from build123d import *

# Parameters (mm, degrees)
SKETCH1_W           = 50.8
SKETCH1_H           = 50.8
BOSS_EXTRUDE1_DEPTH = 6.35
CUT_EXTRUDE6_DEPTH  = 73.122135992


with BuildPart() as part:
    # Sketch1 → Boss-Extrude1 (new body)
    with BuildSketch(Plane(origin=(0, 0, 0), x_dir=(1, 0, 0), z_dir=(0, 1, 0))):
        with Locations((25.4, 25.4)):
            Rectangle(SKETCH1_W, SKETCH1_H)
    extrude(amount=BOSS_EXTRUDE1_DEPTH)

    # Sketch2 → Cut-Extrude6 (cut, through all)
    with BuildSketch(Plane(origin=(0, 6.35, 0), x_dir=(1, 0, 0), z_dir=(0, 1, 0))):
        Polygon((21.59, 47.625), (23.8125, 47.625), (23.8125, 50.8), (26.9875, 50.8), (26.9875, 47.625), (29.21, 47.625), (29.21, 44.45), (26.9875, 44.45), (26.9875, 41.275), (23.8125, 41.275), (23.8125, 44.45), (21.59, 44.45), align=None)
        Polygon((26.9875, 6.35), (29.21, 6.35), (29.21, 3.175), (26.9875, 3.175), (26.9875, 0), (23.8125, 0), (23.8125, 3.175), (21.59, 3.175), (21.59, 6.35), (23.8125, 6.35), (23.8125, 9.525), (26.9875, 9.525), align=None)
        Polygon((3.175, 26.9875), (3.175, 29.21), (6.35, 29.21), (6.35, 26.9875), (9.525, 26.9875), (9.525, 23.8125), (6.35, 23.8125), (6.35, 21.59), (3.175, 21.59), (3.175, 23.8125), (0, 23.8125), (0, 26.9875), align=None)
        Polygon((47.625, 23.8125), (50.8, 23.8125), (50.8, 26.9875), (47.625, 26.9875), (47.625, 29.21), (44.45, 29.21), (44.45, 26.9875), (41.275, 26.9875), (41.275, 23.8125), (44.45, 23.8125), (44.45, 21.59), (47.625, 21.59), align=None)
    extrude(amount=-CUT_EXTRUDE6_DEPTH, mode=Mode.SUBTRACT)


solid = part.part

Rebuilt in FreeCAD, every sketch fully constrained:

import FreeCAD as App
import Part
import Sketcher
Q = App.Units.Quantity


def add_polygon(sketch, points):
    """Adds a closed chain of lines whose ends are joined by coincident constraints."""
    first, n = sketch.GeometryCount, len(points)
    for a, b in zip(points, points[1:] + points[:1]):
        sketch.addGeometry(Part.LineSegment(App.Vector(*a, 0), App.Vector(*b, 0)), False)
    for i in range(n):
        sketch.addConstraint(Sketcher.Constraint("Coincident", first + i, 2, first + (i + 1) % n, 1))

doc = App.newDocument("Part")
body = doc.addObject("PartDesign::Body", "Body")

sketch1 = body.newObject("Sketcher::SketchObject", "Sketch")
sketch1.AttachmentSupport = (doc.getObject("XZ_Plane"), [""])
sketch1.MapMode = "FlatFace"
add_polygon(sketch1, [(0, -51), (0, 0), (51, 0), (51, -51)])
sketch1.addConstraint(Sketcher.Constraint("Vertical", 0))
sketch1.addConstraint(Sketcher.Constraint("Horizontal", 1))
sketch1.addConstraint(Sketcher.Constraint("Vertical", 2))
sketch1.addConstraint(Sketcher.Constraint("Horizontal", 3))
sketch1.addConstraint(Sketcher.Constraint("Coincident", 0, 2, -1, 1))
sketch1.addConstraint(Sketcher.Constraint("Equal", 3, 0))
sketch1.addConstraint(Sketcher.Constraint("DistanceX", 1, 1, 1, 2, Q("2 in")))
pad1 = body.newObject("PartDesign::Pad", "Pad")
pad1.Profile = sketch1
pad1.Length = Q("0.25 in")
pad1.Reversed = True

sketch2 = body.newObject("Sketcher::SketchObject", "Sketch001")
sketch2.AttachmentSupport = (doc.getObject("XZ_Plane"), [""])
sketch2.MapMode = "FlatFace"
sketch2.AttachmentOffset = App.Placement(App.Vector(0, 0, -0.25 * 25.4), App.Rotation())
add_polygon(sketch2, [(23.8, -47.6), (21.6, -47.6), (21.6, -44.5), (23.8, -44.5), (23.8, -41.3), (27, -41.3), (27, -44.5), (29.2, -44.5), (29.2, -47.6), (27, -47.6), (27, -50.8), (23.8, -50.8)])
add_polygon(sketch2, [(29.2, -6.3), (27, -6.3), (27, -9.5), (23.8, -9.5), (23.8, -6.3), (21.6, -6.3), (21.6, -3.2), (23.8, -3.2), (23.8, 0), (27, 0), (27, -3.2), (29.2, -3.2)])
add_polygon(sketch2, [(3.2, -29.2), (3.2, -27), (0, -27), (0, -23.8), (3.2, -23.8), (3.2, -21.6), (6.3, -21.6), (6.3, -23.8), (9.5, -23.8), (9.5, -27), (6.3, -27), (6.3, -29.2)])
add_polygon(sketch2, [(47.6, -23.8), (50.8, -23.8), (50.8, -27), (47.6, -27), (47.6, -29.2), (44.5, -29.2), (44.5, -27), (41.3, -27), (41.3, -23.8), (44.5, -23.8), (44.5, -21.6), (47.6, -21.6)])
sketch2.addConstraint(Sketcher.Constraint("Horizontal", 0))
sketch2.addConstraint(Sketcher.Constraint("Vertical", 1))
sketch2.addConstraint(Sketcher.Constraint("Horizontal", 2))
sketch2.addConstraint(Sketcher.Constraint("Vertical", 3))
sketch2.addConstraint(Sketcher.Constraint("Horizontal", 4))
sketch2.addConstraint(Sketcher.Constraint("Vertical", 5))
sketch2.addConstraint(Sketcher.Constraint("Horizontal", 6))
sketch2.addConstraint(Sketcher.Constraint("Vertical", 7))
sketch2.addConstraint(Sketcher.Constraint("Horizontal", 8))
sketch2.addConstraint(Sketcher.Constraint("Vertical", 9))
sketch2.addConstraint(Sketcher.Constraint("Horizontal", 10))
sketch2.addConstraint(Sketcher.Constraint("Vertical", 11))
sketch2.addConstraint(Sketcher.Constraint("Horizontal", 12))
sketch2.addConstraint(Sketcher.Constraint("Vertical", 13))
sketch2.addConstraint(Sketcher.Constraint("Horizontal", 14))
sketch2.addConstraint(Sketcher.Constraint("Vertical", 15))
sketch2.addConstraint(Sketcher.Constraint("Horizontal", 16))
sketch2.addConstraint(Sketcher.Constraint("Vertical", 17))
sketch2.addConstraint(Sketcher.Constraint("Horizontal", 18))
sketch2.addConstraint(Sketcher.Constraint("Vertical", 19))
sketch2.addConstraint(Sketcher.Constraint("Horizontal", 20))
sketch2.addConstraint(Sketcher.Constraint("Vertical", 21))
sketch2.addConstraint(Sketcher.Constraint("Horizontal", 22))
sketch2.addConstraint(Sketcher.Constraint("Vertical", 23))
sketch2.addConstraint(Sketcher.Constraint("Vertical", 24))
sketch2.addConstraint(Sketcher.Constraint("Horizontal", 25))
sketch2.addConstraint(Sketcher.Constraint("Vertical", 26))
sketch2.addConstraint(Sketcher.Constraint("Horizontal", 27))
sketch2.addConstraint(Sketcher.Constraint("Vertical", 28))
sketch2.addConstraint(Sketcher.Constraint("Horizontal", 29))
sketch2.addConstraint(Sketcher.Constraint("Vertical", 30))
sketch2.addConstraint(Sketcher.Constraint("Horizontal", 31))
sketch2.addConstraint(Sketcher.Constraint("Vertical", 32))
sketch2.addConstraint(Sketcher.Constraint("Horizontal", 33))
sketch2.addConstraint(Sketcher.Constraint("Vertical", 34))
sketch2.addConstraint(Sketcher.Constraint("Horizontal", 35))
sketch2.addConstraint(Sketcher.Constraint("Horizontal", 36))
sketch2.addConstraint(Sketcher.Constraint("Vertical", 37))
sketch2.addConstraint(Sketcher.Constraint("Horizontal", 38))
sketch2.addConstraint(Sketcher.Constraint("Vertical", 39))
sketch2.addConstraint(Sketcher.Constraint("Horizontal", 40))
sketch2.addConstraint(Sketcher.Constraint("Vertical", 41))
sketch2.addConstraint(Sketcher.Constraint("Horizontal", 42))
sketch2.addConstraint(Sketcher.Constraint("Vertical", 43))
sketch2.addConstraint(Sketcher.Constraint("Horizontal", 44))
sketch2.addConstraint(Sketcher.Constraint("Vertical", 45))
sketch2.addConstraint(Sketcher.Constraint("Horizontal", 46))
sketch2.addConstraint(Sketcher.Constraint("Vertical", 47))
sketch2.addConstraint(Sketcher.Constraint("PointOnObject", 19, 2, -1))
sketch2.addConstraint(Sketcher.Constraint("PointOnObject", 25, 2, -2))
sketch2.addConstraint(Sketcher.Constraint("Horizontal", 2, 2, 5, 2))
sketch2.addConstraint(Sketcher.Constraint("Horizontal", 0, 2, 7, 2))
sketch2.addConstraint(Sketcher.Constraint("Horizontal", 12, 2, 15, 2))
sketch2.addConstraint(Sketcher.Constraint("Horizontal", 18, 2, 21, 2))
sketch2.addConstraint(Sketcher.Constraint("Horizontal", 27, 2, 30, 2))
sketch2.addConstraint(Sketcher.Constraint("Horizontal", 25, 2, 32, 2))
sketch2.addConstraint(Sketcher.Constraint("Horizontal", 31, 2, 36, 2))
sketch2.addConstraint(Sketcher.Constraint("Horizontal", 33, 2, 37, 2))
sketch2.addConstraint(Sketcher.Constraint("Horizontal", 35, 2, 39, 2))
sketch2.addConstraint(Sketcher.Constraint("Horizontal", 38, 2, 41, 2))
sketch2.addConstraint(Sketcher.Constraint("Horizontal", 36, 2, 43, 2))
sketch2.addConstraint(Sketcher.Constraint("Horizontal", 29, 2, 45, 2))
sketch2.addConstraint(Sketcher.Constraint("Vertical", 5, 2, 8, 2))
sketch2.addConstraint(Sketcher.Constraint("Vertical", 3, 2, 10, 2))
sketch2.addConstraint(Sketcher.Constraint("Vertical", 9, 2, 12, 2))
sketch2.addConstraint(Sketcher.Constraint("Vertical", 11, 2, 14, 2))
sketch2.addConstraint(Sketcher.Constraint("Vertical", 1, 2, 16, 2))
sketch2.addConstraint(Sketcher.Constraint("Vertical", 15, 2, 18, 2))
sketch2.addConstraint(Sketcher.Constraint("Vertical", 13, 2, 20, 2))
sketch2.addConstraint(Sketcher.Constraint("Vertical", 7, 2, 22, 2))
sketch2.addConstraint(Sketcher.Constraint("Vertical", 24, 2, 27, 2))
sketch2.addConstraint(Sketcher.Constraint("Vertical", 30, 2, 33, 2))
sketch2.addConstraint(Sketcher.Constraint("Vertical", 41, 2, 44, 2))
sketch2.addConstraint(Sketcher.Constraint("Vertical", 39, 2, 46, 2))
sketch2.addConstraint(Sketcher.Constraint("Equal", 2, 6))
sketch2.addConstraint(Sketcher.Constraint("Equal", 20, 25))
sketch2.addConstraint(Sketcher.Constraint("Equal", 27, 29))
sketch2.addConstraint(Sketcher.Constraint("Equal", 29, 31))
sketch2.addConstraint(Sketcher.Constraint("Equal", 35, 36))
sketch2.addConstraint(Sketcher.Constraint("Equal", 38, 40))
sketch2.addConstraint(Sketcher.Constraint("Equal", 40, 42))
sketch2.addConstraint(Sketcher.Constraint("Equal", 46, 1))
sketch2.addConstraint(Sketcher.Constraint("Equal", 1, 3))
sketch2.addConstraint(Sketcher.Constraint("Equal", 7, 9))
sketch2.addConstraint(Sketcher.Constraint("Equal", 11, 13))
sketch2.addConstraint(Sketcher.Constraint("Equal", 15, 17))
sketch2.addConstraint(Sketcher.Constraint("Equal", 17, 19))
sketch2.addConstraint(Sketcher.Constraint("Equal", 22, 24))
sketch2.addConstraint(Sketcher.Constraint("Equal", 23, 26))
sketch2.addConstraint(Sketcher.Constraint("Equal", 24, 28))
sketch2.addConstraint(Sketcher.Constraint("DistanceY", 9, 2, -1, 1, Q("2 in")))
sketch2.addConstraint(Sketcher.Constraint("DistanceX", -1, 1, 36, 2, Q("2 in")))
sketch2.addConstraint(Sketcher.Constraint("DistanceX", 1, 2, 6, 2, Q("0.3 in")))
sketch2.addConstraint(Sketcher.Constraint("DistanceY", 5, 2, 12, 2, Q("1.5 in")))
sketch2.addConstraint(Sketcher.Constraint("DistanceY", 28, 2, 16, 2, Q("0.6 in")))
sketch2.addConstraint(Sketcher.Constraint("DistanceX", -1, 1, 0, 2, Q("0.85 in")))
pocket1 = body.newObject("PartDesign::Pocket", "Pocket")
pocket1.Profile = sketch2
pocket1.Type = "ThroughAll"
pocket1.Reversed = True

doc.recompute()
